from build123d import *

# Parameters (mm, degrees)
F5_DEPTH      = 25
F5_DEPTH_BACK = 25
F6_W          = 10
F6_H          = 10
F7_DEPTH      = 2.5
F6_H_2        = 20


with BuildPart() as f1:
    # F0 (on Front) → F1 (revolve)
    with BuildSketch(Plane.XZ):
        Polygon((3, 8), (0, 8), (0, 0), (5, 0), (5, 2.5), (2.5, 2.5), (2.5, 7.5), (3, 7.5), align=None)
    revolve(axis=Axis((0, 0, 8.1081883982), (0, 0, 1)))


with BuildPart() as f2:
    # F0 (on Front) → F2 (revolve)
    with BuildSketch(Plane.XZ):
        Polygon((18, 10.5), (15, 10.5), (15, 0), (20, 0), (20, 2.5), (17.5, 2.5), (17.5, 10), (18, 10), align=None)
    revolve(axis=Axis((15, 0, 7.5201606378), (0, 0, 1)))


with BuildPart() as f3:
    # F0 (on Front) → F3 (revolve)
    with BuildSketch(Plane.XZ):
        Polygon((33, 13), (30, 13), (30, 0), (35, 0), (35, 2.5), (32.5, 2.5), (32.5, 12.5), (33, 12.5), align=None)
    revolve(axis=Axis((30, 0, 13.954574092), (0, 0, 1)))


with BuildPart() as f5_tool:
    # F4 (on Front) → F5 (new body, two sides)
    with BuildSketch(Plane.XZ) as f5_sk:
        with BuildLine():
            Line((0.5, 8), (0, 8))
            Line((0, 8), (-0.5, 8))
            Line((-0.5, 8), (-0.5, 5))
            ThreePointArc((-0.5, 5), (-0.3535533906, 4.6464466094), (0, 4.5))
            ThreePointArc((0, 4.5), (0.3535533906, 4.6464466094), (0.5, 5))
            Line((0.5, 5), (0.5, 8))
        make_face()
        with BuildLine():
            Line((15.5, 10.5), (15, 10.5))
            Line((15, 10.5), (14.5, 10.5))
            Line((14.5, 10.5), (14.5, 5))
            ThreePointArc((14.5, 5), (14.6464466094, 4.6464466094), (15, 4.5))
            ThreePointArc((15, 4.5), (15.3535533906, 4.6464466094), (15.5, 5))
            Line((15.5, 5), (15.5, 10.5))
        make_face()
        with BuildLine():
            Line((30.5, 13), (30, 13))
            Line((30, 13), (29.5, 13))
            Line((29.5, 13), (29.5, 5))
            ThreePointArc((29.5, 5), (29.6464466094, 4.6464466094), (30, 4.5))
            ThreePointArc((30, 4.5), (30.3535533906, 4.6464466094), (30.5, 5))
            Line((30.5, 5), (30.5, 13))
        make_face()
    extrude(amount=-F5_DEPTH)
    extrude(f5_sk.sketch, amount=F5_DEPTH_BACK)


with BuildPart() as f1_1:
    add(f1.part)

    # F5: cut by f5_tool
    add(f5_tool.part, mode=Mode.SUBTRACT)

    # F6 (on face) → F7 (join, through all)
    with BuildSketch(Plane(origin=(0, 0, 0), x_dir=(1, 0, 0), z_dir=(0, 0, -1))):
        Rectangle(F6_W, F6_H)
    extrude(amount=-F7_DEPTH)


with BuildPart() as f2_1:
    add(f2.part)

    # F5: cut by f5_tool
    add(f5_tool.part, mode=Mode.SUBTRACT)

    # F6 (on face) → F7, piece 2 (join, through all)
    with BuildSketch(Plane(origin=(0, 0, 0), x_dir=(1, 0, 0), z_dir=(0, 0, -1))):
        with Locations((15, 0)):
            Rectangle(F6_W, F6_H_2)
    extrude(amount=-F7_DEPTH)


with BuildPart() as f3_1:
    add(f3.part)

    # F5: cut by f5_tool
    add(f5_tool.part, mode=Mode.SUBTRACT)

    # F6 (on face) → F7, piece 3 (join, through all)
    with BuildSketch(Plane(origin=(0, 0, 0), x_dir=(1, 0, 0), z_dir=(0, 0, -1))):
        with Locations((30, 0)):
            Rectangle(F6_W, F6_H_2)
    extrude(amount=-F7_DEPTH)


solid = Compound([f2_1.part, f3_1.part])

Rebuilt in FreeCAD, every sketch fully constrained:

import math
import FreeCAD as App
import Part
import Sketcher

V = App.Vector

doc = App.newDocument("Part")
body = doc.addObject("PartDesign::Body", "Body")

# Sketch on XZ plane
sketch1 = doc.addObject("Sketcher::SketchObject", "Sketch")
body.addObject(sketch1)
sketch1.AttachmentSupport = (doc.XZ_Plane, [""])
sketch1.MapMode = "FlatFace"
sketch1.addGeometry([
    Part.LineSegment(V(3, 8, 0), V(0, 8, 0)),  # 0
    Part.LineSegment(V(0, 8, 0), V(0, 0, 0)),  # 1
    Part.LineSegment(V(0, 0, 0), V(5, 0, 0)),  # 2
    Part.LineSegment(V(5, 0, 0), V(5, 2.5, 0)),  # 3
    Part.LineSegment(V(5, 2.5, 0), V(2.5, 2.5, 0)),  # 4
    Part.LineSegment(V(2.5, 2.5, 0), V(2.5, 7.5, 0)),  # 5
    Part.LineSegment(V(2.5, 7.5, 0), V(3, 7.5, 0)),  # 6
    Part.LineSegment(V(3, 7.5, 0), V(3, 8, 0)),  # 7
], False)
sketch1.addConstraint([
    Sketcher.Constraint("Coincident", 0, 2, 1, 1),
    Sketcher.Constraint("Coincident", 1, 2, 2, 1),
    Sketcher.Constraint("Coincident", 2, 2, 3, 1),
    Sketcher.Constraint("Coincident", 3, 2, 4, 1),
    Sketcher.Constraint("Coincident", 4, 2, 5, 1),
    Sketcher.Constraint("Coincident", 5, 2, 6, 1),
    Sketcher.Constraint("Coincident", 6, 2, 7, 1),
    Sketcher.Constraint("Coincident", 7, 2, 0, 1),
    Sketcher.Constraint("Horizontal", 0),
    Sketcher.Constraint("Vertical", 1),
    Sketcher.Constraint("Horizontal", 2),
    Sketcher.Constraint("Vertical", 3),
    Sketcher.Constraint("Horizontal", 4),
    Sketcher.Constraint("Vertical", 5),
    Sketcher.Constraint("Horizontal", 6),
    Sketcher.Constraint("Vertical", 7),
    Sketcher.Constraint("Coincident", 1, 2, -1, 1),
    Sketcher.Constraint("Equal", 4, 3),
    Sketcher.Constraint("Equal", 2, 5),
    Sketcher.Constraint("Equal", 6, 7),
    Sketcher.Constraint("DistanceX", 0, 2, 0, 1, 3.0),
    Sketcher.Constraint("DistanceX", 2, 1, 2, 2, 5.0),
    Sketcher.Constraint("DistanceY", 1, 2, 1, 1, 8.0),
])
revolution = doc.addObject("PartDesign::Revolution", "Revolution")
body.addObject(revolution)
revolution.Profile = sketch1
revolution.ReferenceAxis = (sketch1, ["V_Axis"])
revolution.Angle = 360
body2 = doc.addObject("PartDesign::Body", "Body001")

# Sketch on XZ plane
sketch2 = doc.addObject("Sketcher::SketchObject", "Sketch001")
body2.addObject(sketch2)
sketch2.AttachmentSupport = (doc.getObject("XZ_Plane001"), [""])
sketch2.MapMode = "FlatFace"
sketch2.addGeometry([
    Part.LineSegment(V(18, 10.5, 0), V(15, 10.5, 0)),  # 0
    Part.LineSegment(V(15, 10.5, 0), V(15, 0, 0)),  # 1
    Part.LineSegment(V(15, 0, 0), V(20, 0, 0)),  # 2
    Part.LineSegment(V(20, 0, 0), V(20, 2.5, 0)),  # 3
    Part.LineSegment(V(20, 2.5, 0), V(17.5, 2.5, 0)),  # 4
    Part.LineSegment(V(17.5, 2.5, 0), V(17.5, 10, 0)),  # 5
    Part.LineSegment(V(17.5, 10, 0), V(18, 10, 0)),  # 6
    Part.LineSegment(V(18, 10, 0), V(18, 10.5, 0)),  # 7
], False)
sketch2.addGeometry(Part.LineSegment(V(15, 0, 0), V(15, 10.5, 0)), True)  # axis
sketch2.addConstraint([
    Sketcher.Constraint("Coincident", 0, 2, 1, 1),
    Sketcher.Constraint("Coincident", 1, 2, 2, 1),
    Sketcher.Constraint("Coincident", 2, 2, 3, 1),
    Sketcher.Constraint("Coincident", 3, 2, 4, 1),
    Sketcher.Constraint("Coincident", 4, 2, 5, 1),
    Sketcher.Constraint("Coincident", 5, 2, 6, 1),
    Sketcher.Constraint("Coincident", 6, 2, 7, 1),
    Sketcher.Constraint("Coincident", 7, 2, 0, 1),
    Sketcher.Constraint("Horizontal", 0),
    Sketcher.Constraint("Vertical", 1),
    Sketcher.Constraint("Horizontal", 2),
    Sketcher.Constraint("Vertical", 3),
    Sketcher.Constraint("Horizontal", 4),
    Sketcher.Constraint("Vertical", 5),
    Sketcher.Constraint("Horizontal", 6),
    Sketcher.Constraint("Vertical", 7),
    Sketcher.Constraint("Vertical", 8),
    Sketcher.Constraint("Coincident", 8, 1, 1, 2),
    Sketcher.Constraint("PointOnObject", 1, 2, -1),
    Sketcher.Constraint("Horizontal", 7, 2, 8, 2),
    Sketcher.Constraint("Equal", 4, 3),
    Sketcher.Constraint("Equal", 6, 7),
    Sketcher.Constraint("DistanceX", 0, 2, 0, 1, 3.0),
    Sketcher.Constraint("DistanceX", 2, 1, 2, 2, 5.0),
    Sketcher.Constraint("DistanceX", 4, 2, 4, 1, 2.5),
    Sketcher.Constraint("DistanceY", 1, 2, 1, 1, 10.5),
    Sketcher.Constraint("DistanceX", -1, 1, 0, 2, 15.0),
])
revolution2 = doc.addObject("PartDesign::Revolution", "Revolution001")
body2.addObject(revolution2)
revolution2.Profile = sketch2
revolution2.ReferenceAxis = (sketch2, ["Axis0"])
revolution2.Angle = 360
body3 = doc.addObject("PartDesign::Body", "Body002")

# Sketch on XZ plane
sketch3 = doc.addObject("Sketcher::SketchObject", "Sketch002")
body3.addObject(sketch3)
sketch3.AttachmentSupport = (doc.getObject("XZ_Plane002"), [""])
sketch3.MapMode = "FlatFace"
sketch3.addGeometry([
    Part.LineSegment(V(33, 13, 0), V(30, 13, 0)),  # 0
    Part.LineSegment(V(30, 13, 0), V(30, 0, 0)),  # 1
    Part.LineSegment(V(30, 0, 0), V(35, 0, 0)),  # 2
    Part.LineSegment(V(35, 0, 0), V(35, 2.5, 0)),  # 3
    Part.LineSegment(V(35, 2.5, 0), V(32.5, 2.5, 0)),  # 4
    Part.LineSegment(V(32.5, 2.5, 0), V(32.5, 12.5, 0)),  # 5
    Part.LineSegment(V(32.5, 12.5, 0), V(33, 12.5, 0)),  # 6
    Part.LineSegment(V(33, 12.5, 0), V(33, 13, 0)),  # 7
], False)
sketch3.addGeometry(Part.LineSegment(V(30, 0, 0), V(30, 13, 0)), True)  # axis
sketch3.addConstraint([
    Sketcher.Constraint("Coincident", 0, 2, 1, 1),
    Sketcher.Constraint("Coincident", 1, 2, 2, 1),
    Sketcher.Constraint("Coincident", 2, 2, 3, 1),
    Sketcher.Constraint("Coincident", 3, 2, 4, 1),
    Sketcher.Constraint("Coincident", 4, 2, 5, 1),
    Sketcher.Constraint("Coincident", 5, 2, 6, 1),
    Sketcher.Constraint("Coincident", 6, 2, 7, 1),
    Sketcher.Constraint("Coincident", 7, 2, 0, 1),
    Sketcher.Constraint("Horizontal", 0),
    Sketcher.Constraint("Vertical", 1),
    Sketcher.Constraint("Horizontal", 2),
    Sketcher.Constraint("Vertical", 3),
    Sketcher.Constraint("Horizontal", 4),
    Sketcher.Constraint("Vertical", 5),
    Sketcher.Constraint("Horizontal", 6),
    Sketcher.Constraint("Vertical", 7),
    Sketcher.Constraint("Vertical", 8),
    Sketcher.Constraint("Coincident", 8, 1, 1, 2),
    Sketcher.Constraint("PointOnObject", 1, 2, -1),
    Sketcher.Constraint("Horizontal", 7, 2, 8, 2),
    Sketcher.Constraint("Equal", 4, 3),
    Sketcher.Constraint("Equal", 6, 7),
    Sketcher.Constraint("DistanceX", 0, 2, 0, 1, 3.0),
    Sketcher.Constraint("DistanceX", 2, 1, 2, 2, 5.0),
    Sketcher.Constraint("DistanceY", 1, 2, 1, 1, 13.0),
    Sketcher.Constraint("DistanceY", 5, 1, 5, 2, 10.0),
    Sketcher.Constraint("DistanceX", -1, 1, 0, 2, 30.0),
])
revolution3 = doc.addObject("PartDesign::Revolution", "Revolution002")
body3.addObject(revolution3)
revolution3.Profile = sketch3
revolution3.ReferenceAxis = (sketch3, ["Axis0"])
revolution3.Angle = 360
body4 = doc.addObject("PartDesign::Body", "Body003")
body4.AllowCompound = True

# Sketch on XZ plane
sketch4 = doc.addObject("Sketcher::SketchObject", "Sketch003")
body4.addObject(sketch4)
sketch4.AttachmentSupport = (doc.getObject("XZ_Plane003"), [""])
sketch4.MapMode = "FlatFace"
sketch4.addGeometry([
    Part.LineSegment(V(0.5, 8, 0), V(-0.5, 8, 0)),  # 0
    Part.LineSegment(V(-0.5, 8, 0), V(-0.5, 5, 0)),  # 1
    Part.ArcOfCircle(Part.Circle(V(0, 5, 0), V(0, 0, 1), 0.5), math.radians(180), math.radians(270)),  # 2
    Part.ArcOfCircle(Part.Circle(V(0, 5, 0), V(0, 0, 1), 0.5), math.radians(-90), math.radians(0)),  # 3
    Part.LineSegment(V(0.5, 5, 0), V(0.5, 8, 0)),  # 4
    Part.LineSegment(V(15.5, 10.5, 0), V(14.5, 10.5, 0)),  # 5
    Part.LineSegment(V(14.5, 10.5, 0), V(14.5, 5, 0)),  # 6
    Part.ArcOfCircle(Part.Circle(V(15, 5, 0), V(0, 0, 1), 0.5), math.radians(180), math.radians(270)),  # 7
    Part.ArcOfCircle(Part.Circle(V(15, 5, 0), V(0, 0, 1), 0.5), math.radians(-90), math.radians(0)),  # 8
    Part.LineSegment(V(15.5, 5, 0), V(15.5, 10.5, 0)),  # 9
    Part.LineSegment(V(30.5, 13, 0), V(29.5, 13, 0)),  # 10
    Part.LineSegment(V(29.5, 13, 0), V(29.5, 5, 0)),  # 11
    Part.ArcOfCircle(Part.Circle(V(30, 5, 0), V(0, 0, 1), 0.5), math.radians(180), math.radians(270)),  # 12
    Part.ArcOfCircle(Part.Circle(V(30, 5, 0), V(0, 0, 1), 0.5), math.radians(-90), math.radians(0)),  # 13
    Part.LineSegment(V(30.5, 5, 0), V(30.5, 13, 0)),  # 14
], False)
sketch4.addConstraint([
    Sketcher.Constraint("Coincident", 0, 2, 1, 1),
    Sketcher.Constraint("Tangent", 1, 2, 2, 1),
    Sketcher.Constraint("Tangent", 2, 2, 3, 1),
    Sketcher.Constraint("Tangent", 3, 2, 4, 1),
    Sketcher.Constraint("Coincident", 4, 2, 0, 1),
    Sketcher.Constraint("Coincident", 5, 2, 6, 1),
    Sketcher.Constraint("Tangent", 6, 2, 7, 1),
    Sketcher.Constraint("Tangent", 7, 2, 8, 1),
    Sketcher.Constraint("Tangent", 8, 2, 9, 1),
    Sketcher.Constraint("Coincident", 9, 2, 5, 1),
    Sketcher.Constraint("Coincident", 10, 2, 11, 1),
    Sketcher.Constraint("Tangent", 11, 2, 12, 1),
    Sketcher.Constraint("Tangent", 12, 2, 13, 1),
    Sketcher.Constraint("Tangent", 13, 2, 14, 1),
    Sketcher.Constraint("Coincident", 14, 2, 10, 1),
    Sketcher.Constraint("Horizontal", 0),
    Sketcher.Constraint("Vertical", 1),
    Sketcher.Constraint("Vertical", 4),
    Sketcher.Constraint("Horizontal", 5),
    Sketcher.Constraint("Vertical", 6),
    Sketcher.Constraint("Vertical", 9),
    Sketcher.Constraint("Horizontal", 10),
    Sketcher.Constraint("Vertical", 11),
    Sketcher.Constraint("Vertical", 14),
    Sketcher.Constraint("Equal", 2, 3),
    Sketcher.Constraint("Equal", 3, 7),
    Sketcher.Constraint("Equal", 7, 8),
    Sketcher.Constraint("Equal", 8, 12),
    Sketcher.Constraint("Equal", 12, 13),
    Sketcher.Constraint("PointOnObject", 2, 3, -2),
    Sketcher.Constraint("PointOnObject", 2, 2, -2),
    Sketcher.Constraint("Horizontal", 3, 3, 7, 3),
    Sketcher.Constraint("Horizontal", 8, 3, 12, 3),
    Sketcher.Constraint("Vertical", 8, 3, 7, 2),
    Sketcher.Constraint("Vertical", 13, 3, 12, 2),
    Sketcher.Constraint("Radius", 2, 0.5),
    Sketcher.Constraint("DistanceY", 1, 2, 1, 1, 3.0),
    Sketcher.Constraint("DistanceY", 11, 2, 11, 1, 8.0),
    Sketcher.Constraint("DistanceY", 6, 2, 6, 1, 5.5),
    Sketcher.Constraint("DistanceY", -1, 1, 2, 3, 5.0),
    Sketcher.Constraint("DistanceX", -1, 1, 7, 3, 15.0),
    Sketcher.Constraint("DistanceX", -1, 1, 12, 3, 30.0),
])
pad1 = doc.addObject("PartDesign::Pad", "Pad")
body4.addObject(pad1)
pad1.Profile = sketch4
pad1.Type = "TwoLengths"
pad1.Length = 25
pad1.Length2 = 25
pad1.Reversed = True
doc.recompute()

body5 = doc.addObject("PartDesign::Body", "Body004")
body5.BaseFeature = body4
boolean = doc.addObject("PartDesign::Boolean", "Boolean")
body.addObject(boolean)
boolean.Type = "Cut"
boolean.addObjects([body5])
doc.recompute()

# Sketch on XY plane
sketch5 = doc.addObject("Sketcher::SketchObject", "Sketch004")
body.addObject(sketch5)
sketch5.AttachmentSupport = (doc.XY_Plane, [""])
sketch5.MapMode = "FlatFace"
sketch5.addGeometry([
    Part.LineSegment(V(-5, -5, 0), V(-5, 5, 0)),
    Part.LineSegment(V(-5, 5, 0), V(5, 5, 0)),
    Part.LineSegment(V(5, 5, 0), V(5, -5, 0)),
    Part.LineSegment(V(5, -5, 0), V(-5, -5, 0)),
], False)
sketch5.addConstraint([
    Sketcher.Constraint("Coincident", 0, 2, 1, 1),
    Sketcher.Constraint("Coincident", 1, 2, 2, 1),
    Sketcher.Constraint("Coincident", 2, 2, 3, 1),
    Sketcher.Constraint("Coincident", 3, 2, 0, 1),
    Sketcher.Constraint("Vertical", 0),
    Sketcher.Constraint("Horizontal", 1),
    Sketcher.Constraint("Vertical", 2),
    Sketcher.Constraint("Horizontal", 3),
    Sketcher.Constraint("Symmetric", 0, 2, 2, 2, -1, 1),
    Sketcher.Constraint("Equal", 3, 0),
    Sketcher.Constraint("DistanceX", 1, 1, 1, 2, 10.0),
])
pad2 = doc.addObject("PartDesign::Pad", "Pad001")
body.addObject(pad2)
pad2.Profile = sketch5
pad2.Length = 2.5
doc.recompute()

body6 = doc.addObject("PartDesign::Body", "Body005")
body6.BaseFeature = body4
boolean2 = doc.addObject("PartDesign::Boolean", "Boolean001")
body2.addObject(boolean2)
boolean2.Type = "Cut"
boolean2.addObjects([body6])
doc.recompute()

# Sketch on XY plane
sketch6 = doc.addObject("Sketcher::SketchObject", "Sketch005")
body2.addObject(sketch6)
sketch6.AttachmentSupport = (doc.getObject("XY_Plane001"), [""])
sketch6.MapMode = "FlatFace"
sketch6.addGeometry([
    Part.LineSegment(V(10, -10, 0), V(10, 10, 0)),
    Part.LineSegment(V(10, 10, 0), V(20, 10, 0)),
    Part.LineSegment(V(20, 10, 0), V(20, -10, 0)),
    Part.LineSegment(V(20, -10, 0), V(10, -10, 0)),
], False)
sketch6.addConstraint([
    Sketcher.Constraint("Coincident", 0, 2, 1, 1),
    Sketcher.Constraint("Coincident", 1, 2, 2, 1),
    Sketcher.Constraint("Coincident", 2, 2, 3, 1),
    Sketcher.Constraint("Coincident", 3, 2, 0, 1),
    Sketcher.Constraint("Vertical", 0),
    Sketcher.Constraint("Horizontal", 1),
    Sketcher.Constraint("Vertical", 2),
    Sketcher.Constraint("Horizontal", 3),
    Sketcher.Constraint("DistanceX", 1, 1, 1, 2, 10.0),
    Sketcher.Constraint("DistanceY", 0, 1, 0, 2, 20.0),
    Sketcher.Constraint("DistanceX", -1, 1, 0, 2, 10.0),
    Sketcher.Constraint("DistanceY", -1, 1, 0, 2, 10.0),
])
pad3 = doc.addObject("PartDesign::Pad", "Pad002")
body2.addObject(pad3)
pad3.Profile = sketch6
pad3.Length = 2.5
doc.recompute()

boolean3 = doc.addObject("PartDesign::Boolean", "Boolean002")
body3.addObject(boolean3)
boolean3.Type = "Cut"
boolean3.addObjects([body4])

# Sketch on XY plane
sketch7 = doc.addObject("Sketcher::SketchObject", "Sketch006")
body3.addObject(sketch7)
sketch7.AttachmentSupport = (doc.getObject("XY_Plane002"), [""])
sketch7.MapMode = "FlatFace"
sketch7.addGeometry([
    Part.LineSegment(V(25, -10, 0), V(25, 10, 0)),
    Part.LineSegment(V(25, 10, 0), V(35, 10, 0)),
    Part.LineSegment(V(35, 10, 0), V(35, -10, 0)),
    Part.LineSegment(V(35, -10, 0), V(25, -10, 0)),
], False)
sketch7.addConstraint([
    Sketcher.Constraint("Coincident", 0, 2, 1, 1),
    Sketcher.Constraint("Coincident", 1, 2, 2, 1),
    Sketcher.Constraint("Coincident", 2, 2, 3, 1),
    Sketcher.Constraint("Coincident", 3, 2, 0, 1),
    Sketcher.Constraint("Vertical", 0),
    Sketcher.Constraint("Horizontal", 1),
    Sketcher.Constraint("Vertical", 2),
    Sketcher.Constraint("Horizontal", 3),
    Sketcher.Constraint("DistanceX", 1, 1, 1, 2, 10.0),
    Sketcher.Constraint("DistanceY", 0, 1, 0, 2, 20.0),
    Sketcher.Constraint("DistanceX", -1, 1, 0, 2, 25.0),
    Sketcher.Constraint("DistanceY", -1, 1, 0, 2, 10.0),
])
pad4 = doc.addObject("PartDesign::Pad", "Pad003")
body3.addObject(pad4)
pad4.Profile = sketch7
pad4.Length = 2.5
body.Visibility = False

doc.recompute()
